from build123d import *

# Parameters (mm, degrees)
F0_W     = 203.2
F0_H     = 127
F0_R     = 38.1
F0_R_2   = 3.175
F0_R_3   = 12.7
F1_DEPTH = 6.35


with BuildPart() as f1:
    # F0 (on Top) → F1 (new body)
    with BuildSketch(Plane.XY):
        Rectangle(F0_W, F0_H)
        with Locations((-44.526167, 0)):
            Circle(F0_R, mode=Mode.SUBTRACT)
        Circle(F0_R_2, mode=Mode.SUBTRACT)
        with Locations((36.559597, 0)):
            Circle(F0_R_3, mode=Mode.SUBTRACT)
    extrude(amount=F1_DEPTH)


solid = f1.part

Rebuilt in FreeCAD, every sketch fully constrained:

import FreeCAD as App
import Part
import Sketcher
Q = App.Units.Quantity


def add_polygon(sketch, points):
    """Adds a closed chain of lines whose ends are joined by coincident constraints."""
    first, n = sketch.GeometryCount, len(points)
    for a, b in zip(points, points[1:] + points[:1]):
        sketch.addGeometry(Part.LineSegment(App.Vector(*a, 0), App.Vector(*b, 0)), False)
    for i in range(n):
        sketch.addConstraint(Sketcher.Constraint("Coincident", first + i, 2, first + (i + 1) % n, 1))

doc = App.newDocument("Part")
body = doc.addObject("PartDesign::Body", "Body")

# Sketch on XY plane
sketch1 = body.newObject("Sketcher::SketchObject", "Sketch")
sketch1.AttachmentSupport = (doc.getObject("XY_Plane"), [""])
sketch1.MapMode = "FlatFace"
add_polygon(sketch1, [(-101.6, 63.5), (-101.6, -63.5), (101.6, -63.5), (101.6, 63.5)])  # lines 0-3
sketch1.addGeometry(Part.Circle(App.Vector(-44.5, 0, 0), App.Vector(0, 0, 1), 38.1), False)  # 4
sketch1.addGeometry(Part.Circle(App.Vector(0, 0, 0), App.Vector(0, 0, 1), 3.2), False)  # 5
sketch1.addGeometry(Part.Circle(App.Vector(36.6, 0, 0), App.Vector(0, 0, 1), 12.7), False)  # 6
sketch1.addConstraint(Sketcher.Constraint("Vertical", 0))
sketch1.addConstraint(Sketcher.Constraint("Horizontal", 1))
sketch1.addConstraint(Sketcher.Constraint("Vertical", 2))
sketch1.addConstraint(Sketcher.Constraint("Horizontal", 3))
sketch1.addConstraint(Sketcher.Constraint("Coincident", 5, 3, -1, 1))
sketch1.addConstraint(Sketcher.Constraint("Symmetric", 0, 2, 2, 2, -1, 1))
sketch1.addConstraint(Sketcher.Constraint("PointOnObject", 4, 3, -1))
sketch1.addConstraint(Sketcher.Constraint("PointOnObject", 6, 3, -1))
sketch1.addConstraint(Sketcher.Constraint("Diameter", 4, Q("3 in")))
sketch1.addConstraint(Sketcher.Constraint("Diameter", 6, Q("1 in")))
sketch1.addConstraint(Sketcher.Constraint("Diameter", 5, Q("0.25 in")))
sketch1.addConstraint(Sketcher.Constraint("DistanceX", 1, 1, 1, 2, Q("8 in")))
sketch1.addConstraint(Sketcher.Constraint("DistanceY", 0, 2, 0, 1, Q("5 in")))
sketch1.addConstraint(Sketcher.Constraint("DistanceX", 4, 3, -1, 1, Q("44.526167 mm")))
sketch1.addConstraint(Sketcher.Constraint("DistanceX", -1, 1, 6, 3, Q("36.559597 mm")))
pad1 = body.newObject("PartDesign::Pad", "Pad")
pad1.Profile = sketch1
pad1.Length = Q("0.25 in")

doc.recompute()
